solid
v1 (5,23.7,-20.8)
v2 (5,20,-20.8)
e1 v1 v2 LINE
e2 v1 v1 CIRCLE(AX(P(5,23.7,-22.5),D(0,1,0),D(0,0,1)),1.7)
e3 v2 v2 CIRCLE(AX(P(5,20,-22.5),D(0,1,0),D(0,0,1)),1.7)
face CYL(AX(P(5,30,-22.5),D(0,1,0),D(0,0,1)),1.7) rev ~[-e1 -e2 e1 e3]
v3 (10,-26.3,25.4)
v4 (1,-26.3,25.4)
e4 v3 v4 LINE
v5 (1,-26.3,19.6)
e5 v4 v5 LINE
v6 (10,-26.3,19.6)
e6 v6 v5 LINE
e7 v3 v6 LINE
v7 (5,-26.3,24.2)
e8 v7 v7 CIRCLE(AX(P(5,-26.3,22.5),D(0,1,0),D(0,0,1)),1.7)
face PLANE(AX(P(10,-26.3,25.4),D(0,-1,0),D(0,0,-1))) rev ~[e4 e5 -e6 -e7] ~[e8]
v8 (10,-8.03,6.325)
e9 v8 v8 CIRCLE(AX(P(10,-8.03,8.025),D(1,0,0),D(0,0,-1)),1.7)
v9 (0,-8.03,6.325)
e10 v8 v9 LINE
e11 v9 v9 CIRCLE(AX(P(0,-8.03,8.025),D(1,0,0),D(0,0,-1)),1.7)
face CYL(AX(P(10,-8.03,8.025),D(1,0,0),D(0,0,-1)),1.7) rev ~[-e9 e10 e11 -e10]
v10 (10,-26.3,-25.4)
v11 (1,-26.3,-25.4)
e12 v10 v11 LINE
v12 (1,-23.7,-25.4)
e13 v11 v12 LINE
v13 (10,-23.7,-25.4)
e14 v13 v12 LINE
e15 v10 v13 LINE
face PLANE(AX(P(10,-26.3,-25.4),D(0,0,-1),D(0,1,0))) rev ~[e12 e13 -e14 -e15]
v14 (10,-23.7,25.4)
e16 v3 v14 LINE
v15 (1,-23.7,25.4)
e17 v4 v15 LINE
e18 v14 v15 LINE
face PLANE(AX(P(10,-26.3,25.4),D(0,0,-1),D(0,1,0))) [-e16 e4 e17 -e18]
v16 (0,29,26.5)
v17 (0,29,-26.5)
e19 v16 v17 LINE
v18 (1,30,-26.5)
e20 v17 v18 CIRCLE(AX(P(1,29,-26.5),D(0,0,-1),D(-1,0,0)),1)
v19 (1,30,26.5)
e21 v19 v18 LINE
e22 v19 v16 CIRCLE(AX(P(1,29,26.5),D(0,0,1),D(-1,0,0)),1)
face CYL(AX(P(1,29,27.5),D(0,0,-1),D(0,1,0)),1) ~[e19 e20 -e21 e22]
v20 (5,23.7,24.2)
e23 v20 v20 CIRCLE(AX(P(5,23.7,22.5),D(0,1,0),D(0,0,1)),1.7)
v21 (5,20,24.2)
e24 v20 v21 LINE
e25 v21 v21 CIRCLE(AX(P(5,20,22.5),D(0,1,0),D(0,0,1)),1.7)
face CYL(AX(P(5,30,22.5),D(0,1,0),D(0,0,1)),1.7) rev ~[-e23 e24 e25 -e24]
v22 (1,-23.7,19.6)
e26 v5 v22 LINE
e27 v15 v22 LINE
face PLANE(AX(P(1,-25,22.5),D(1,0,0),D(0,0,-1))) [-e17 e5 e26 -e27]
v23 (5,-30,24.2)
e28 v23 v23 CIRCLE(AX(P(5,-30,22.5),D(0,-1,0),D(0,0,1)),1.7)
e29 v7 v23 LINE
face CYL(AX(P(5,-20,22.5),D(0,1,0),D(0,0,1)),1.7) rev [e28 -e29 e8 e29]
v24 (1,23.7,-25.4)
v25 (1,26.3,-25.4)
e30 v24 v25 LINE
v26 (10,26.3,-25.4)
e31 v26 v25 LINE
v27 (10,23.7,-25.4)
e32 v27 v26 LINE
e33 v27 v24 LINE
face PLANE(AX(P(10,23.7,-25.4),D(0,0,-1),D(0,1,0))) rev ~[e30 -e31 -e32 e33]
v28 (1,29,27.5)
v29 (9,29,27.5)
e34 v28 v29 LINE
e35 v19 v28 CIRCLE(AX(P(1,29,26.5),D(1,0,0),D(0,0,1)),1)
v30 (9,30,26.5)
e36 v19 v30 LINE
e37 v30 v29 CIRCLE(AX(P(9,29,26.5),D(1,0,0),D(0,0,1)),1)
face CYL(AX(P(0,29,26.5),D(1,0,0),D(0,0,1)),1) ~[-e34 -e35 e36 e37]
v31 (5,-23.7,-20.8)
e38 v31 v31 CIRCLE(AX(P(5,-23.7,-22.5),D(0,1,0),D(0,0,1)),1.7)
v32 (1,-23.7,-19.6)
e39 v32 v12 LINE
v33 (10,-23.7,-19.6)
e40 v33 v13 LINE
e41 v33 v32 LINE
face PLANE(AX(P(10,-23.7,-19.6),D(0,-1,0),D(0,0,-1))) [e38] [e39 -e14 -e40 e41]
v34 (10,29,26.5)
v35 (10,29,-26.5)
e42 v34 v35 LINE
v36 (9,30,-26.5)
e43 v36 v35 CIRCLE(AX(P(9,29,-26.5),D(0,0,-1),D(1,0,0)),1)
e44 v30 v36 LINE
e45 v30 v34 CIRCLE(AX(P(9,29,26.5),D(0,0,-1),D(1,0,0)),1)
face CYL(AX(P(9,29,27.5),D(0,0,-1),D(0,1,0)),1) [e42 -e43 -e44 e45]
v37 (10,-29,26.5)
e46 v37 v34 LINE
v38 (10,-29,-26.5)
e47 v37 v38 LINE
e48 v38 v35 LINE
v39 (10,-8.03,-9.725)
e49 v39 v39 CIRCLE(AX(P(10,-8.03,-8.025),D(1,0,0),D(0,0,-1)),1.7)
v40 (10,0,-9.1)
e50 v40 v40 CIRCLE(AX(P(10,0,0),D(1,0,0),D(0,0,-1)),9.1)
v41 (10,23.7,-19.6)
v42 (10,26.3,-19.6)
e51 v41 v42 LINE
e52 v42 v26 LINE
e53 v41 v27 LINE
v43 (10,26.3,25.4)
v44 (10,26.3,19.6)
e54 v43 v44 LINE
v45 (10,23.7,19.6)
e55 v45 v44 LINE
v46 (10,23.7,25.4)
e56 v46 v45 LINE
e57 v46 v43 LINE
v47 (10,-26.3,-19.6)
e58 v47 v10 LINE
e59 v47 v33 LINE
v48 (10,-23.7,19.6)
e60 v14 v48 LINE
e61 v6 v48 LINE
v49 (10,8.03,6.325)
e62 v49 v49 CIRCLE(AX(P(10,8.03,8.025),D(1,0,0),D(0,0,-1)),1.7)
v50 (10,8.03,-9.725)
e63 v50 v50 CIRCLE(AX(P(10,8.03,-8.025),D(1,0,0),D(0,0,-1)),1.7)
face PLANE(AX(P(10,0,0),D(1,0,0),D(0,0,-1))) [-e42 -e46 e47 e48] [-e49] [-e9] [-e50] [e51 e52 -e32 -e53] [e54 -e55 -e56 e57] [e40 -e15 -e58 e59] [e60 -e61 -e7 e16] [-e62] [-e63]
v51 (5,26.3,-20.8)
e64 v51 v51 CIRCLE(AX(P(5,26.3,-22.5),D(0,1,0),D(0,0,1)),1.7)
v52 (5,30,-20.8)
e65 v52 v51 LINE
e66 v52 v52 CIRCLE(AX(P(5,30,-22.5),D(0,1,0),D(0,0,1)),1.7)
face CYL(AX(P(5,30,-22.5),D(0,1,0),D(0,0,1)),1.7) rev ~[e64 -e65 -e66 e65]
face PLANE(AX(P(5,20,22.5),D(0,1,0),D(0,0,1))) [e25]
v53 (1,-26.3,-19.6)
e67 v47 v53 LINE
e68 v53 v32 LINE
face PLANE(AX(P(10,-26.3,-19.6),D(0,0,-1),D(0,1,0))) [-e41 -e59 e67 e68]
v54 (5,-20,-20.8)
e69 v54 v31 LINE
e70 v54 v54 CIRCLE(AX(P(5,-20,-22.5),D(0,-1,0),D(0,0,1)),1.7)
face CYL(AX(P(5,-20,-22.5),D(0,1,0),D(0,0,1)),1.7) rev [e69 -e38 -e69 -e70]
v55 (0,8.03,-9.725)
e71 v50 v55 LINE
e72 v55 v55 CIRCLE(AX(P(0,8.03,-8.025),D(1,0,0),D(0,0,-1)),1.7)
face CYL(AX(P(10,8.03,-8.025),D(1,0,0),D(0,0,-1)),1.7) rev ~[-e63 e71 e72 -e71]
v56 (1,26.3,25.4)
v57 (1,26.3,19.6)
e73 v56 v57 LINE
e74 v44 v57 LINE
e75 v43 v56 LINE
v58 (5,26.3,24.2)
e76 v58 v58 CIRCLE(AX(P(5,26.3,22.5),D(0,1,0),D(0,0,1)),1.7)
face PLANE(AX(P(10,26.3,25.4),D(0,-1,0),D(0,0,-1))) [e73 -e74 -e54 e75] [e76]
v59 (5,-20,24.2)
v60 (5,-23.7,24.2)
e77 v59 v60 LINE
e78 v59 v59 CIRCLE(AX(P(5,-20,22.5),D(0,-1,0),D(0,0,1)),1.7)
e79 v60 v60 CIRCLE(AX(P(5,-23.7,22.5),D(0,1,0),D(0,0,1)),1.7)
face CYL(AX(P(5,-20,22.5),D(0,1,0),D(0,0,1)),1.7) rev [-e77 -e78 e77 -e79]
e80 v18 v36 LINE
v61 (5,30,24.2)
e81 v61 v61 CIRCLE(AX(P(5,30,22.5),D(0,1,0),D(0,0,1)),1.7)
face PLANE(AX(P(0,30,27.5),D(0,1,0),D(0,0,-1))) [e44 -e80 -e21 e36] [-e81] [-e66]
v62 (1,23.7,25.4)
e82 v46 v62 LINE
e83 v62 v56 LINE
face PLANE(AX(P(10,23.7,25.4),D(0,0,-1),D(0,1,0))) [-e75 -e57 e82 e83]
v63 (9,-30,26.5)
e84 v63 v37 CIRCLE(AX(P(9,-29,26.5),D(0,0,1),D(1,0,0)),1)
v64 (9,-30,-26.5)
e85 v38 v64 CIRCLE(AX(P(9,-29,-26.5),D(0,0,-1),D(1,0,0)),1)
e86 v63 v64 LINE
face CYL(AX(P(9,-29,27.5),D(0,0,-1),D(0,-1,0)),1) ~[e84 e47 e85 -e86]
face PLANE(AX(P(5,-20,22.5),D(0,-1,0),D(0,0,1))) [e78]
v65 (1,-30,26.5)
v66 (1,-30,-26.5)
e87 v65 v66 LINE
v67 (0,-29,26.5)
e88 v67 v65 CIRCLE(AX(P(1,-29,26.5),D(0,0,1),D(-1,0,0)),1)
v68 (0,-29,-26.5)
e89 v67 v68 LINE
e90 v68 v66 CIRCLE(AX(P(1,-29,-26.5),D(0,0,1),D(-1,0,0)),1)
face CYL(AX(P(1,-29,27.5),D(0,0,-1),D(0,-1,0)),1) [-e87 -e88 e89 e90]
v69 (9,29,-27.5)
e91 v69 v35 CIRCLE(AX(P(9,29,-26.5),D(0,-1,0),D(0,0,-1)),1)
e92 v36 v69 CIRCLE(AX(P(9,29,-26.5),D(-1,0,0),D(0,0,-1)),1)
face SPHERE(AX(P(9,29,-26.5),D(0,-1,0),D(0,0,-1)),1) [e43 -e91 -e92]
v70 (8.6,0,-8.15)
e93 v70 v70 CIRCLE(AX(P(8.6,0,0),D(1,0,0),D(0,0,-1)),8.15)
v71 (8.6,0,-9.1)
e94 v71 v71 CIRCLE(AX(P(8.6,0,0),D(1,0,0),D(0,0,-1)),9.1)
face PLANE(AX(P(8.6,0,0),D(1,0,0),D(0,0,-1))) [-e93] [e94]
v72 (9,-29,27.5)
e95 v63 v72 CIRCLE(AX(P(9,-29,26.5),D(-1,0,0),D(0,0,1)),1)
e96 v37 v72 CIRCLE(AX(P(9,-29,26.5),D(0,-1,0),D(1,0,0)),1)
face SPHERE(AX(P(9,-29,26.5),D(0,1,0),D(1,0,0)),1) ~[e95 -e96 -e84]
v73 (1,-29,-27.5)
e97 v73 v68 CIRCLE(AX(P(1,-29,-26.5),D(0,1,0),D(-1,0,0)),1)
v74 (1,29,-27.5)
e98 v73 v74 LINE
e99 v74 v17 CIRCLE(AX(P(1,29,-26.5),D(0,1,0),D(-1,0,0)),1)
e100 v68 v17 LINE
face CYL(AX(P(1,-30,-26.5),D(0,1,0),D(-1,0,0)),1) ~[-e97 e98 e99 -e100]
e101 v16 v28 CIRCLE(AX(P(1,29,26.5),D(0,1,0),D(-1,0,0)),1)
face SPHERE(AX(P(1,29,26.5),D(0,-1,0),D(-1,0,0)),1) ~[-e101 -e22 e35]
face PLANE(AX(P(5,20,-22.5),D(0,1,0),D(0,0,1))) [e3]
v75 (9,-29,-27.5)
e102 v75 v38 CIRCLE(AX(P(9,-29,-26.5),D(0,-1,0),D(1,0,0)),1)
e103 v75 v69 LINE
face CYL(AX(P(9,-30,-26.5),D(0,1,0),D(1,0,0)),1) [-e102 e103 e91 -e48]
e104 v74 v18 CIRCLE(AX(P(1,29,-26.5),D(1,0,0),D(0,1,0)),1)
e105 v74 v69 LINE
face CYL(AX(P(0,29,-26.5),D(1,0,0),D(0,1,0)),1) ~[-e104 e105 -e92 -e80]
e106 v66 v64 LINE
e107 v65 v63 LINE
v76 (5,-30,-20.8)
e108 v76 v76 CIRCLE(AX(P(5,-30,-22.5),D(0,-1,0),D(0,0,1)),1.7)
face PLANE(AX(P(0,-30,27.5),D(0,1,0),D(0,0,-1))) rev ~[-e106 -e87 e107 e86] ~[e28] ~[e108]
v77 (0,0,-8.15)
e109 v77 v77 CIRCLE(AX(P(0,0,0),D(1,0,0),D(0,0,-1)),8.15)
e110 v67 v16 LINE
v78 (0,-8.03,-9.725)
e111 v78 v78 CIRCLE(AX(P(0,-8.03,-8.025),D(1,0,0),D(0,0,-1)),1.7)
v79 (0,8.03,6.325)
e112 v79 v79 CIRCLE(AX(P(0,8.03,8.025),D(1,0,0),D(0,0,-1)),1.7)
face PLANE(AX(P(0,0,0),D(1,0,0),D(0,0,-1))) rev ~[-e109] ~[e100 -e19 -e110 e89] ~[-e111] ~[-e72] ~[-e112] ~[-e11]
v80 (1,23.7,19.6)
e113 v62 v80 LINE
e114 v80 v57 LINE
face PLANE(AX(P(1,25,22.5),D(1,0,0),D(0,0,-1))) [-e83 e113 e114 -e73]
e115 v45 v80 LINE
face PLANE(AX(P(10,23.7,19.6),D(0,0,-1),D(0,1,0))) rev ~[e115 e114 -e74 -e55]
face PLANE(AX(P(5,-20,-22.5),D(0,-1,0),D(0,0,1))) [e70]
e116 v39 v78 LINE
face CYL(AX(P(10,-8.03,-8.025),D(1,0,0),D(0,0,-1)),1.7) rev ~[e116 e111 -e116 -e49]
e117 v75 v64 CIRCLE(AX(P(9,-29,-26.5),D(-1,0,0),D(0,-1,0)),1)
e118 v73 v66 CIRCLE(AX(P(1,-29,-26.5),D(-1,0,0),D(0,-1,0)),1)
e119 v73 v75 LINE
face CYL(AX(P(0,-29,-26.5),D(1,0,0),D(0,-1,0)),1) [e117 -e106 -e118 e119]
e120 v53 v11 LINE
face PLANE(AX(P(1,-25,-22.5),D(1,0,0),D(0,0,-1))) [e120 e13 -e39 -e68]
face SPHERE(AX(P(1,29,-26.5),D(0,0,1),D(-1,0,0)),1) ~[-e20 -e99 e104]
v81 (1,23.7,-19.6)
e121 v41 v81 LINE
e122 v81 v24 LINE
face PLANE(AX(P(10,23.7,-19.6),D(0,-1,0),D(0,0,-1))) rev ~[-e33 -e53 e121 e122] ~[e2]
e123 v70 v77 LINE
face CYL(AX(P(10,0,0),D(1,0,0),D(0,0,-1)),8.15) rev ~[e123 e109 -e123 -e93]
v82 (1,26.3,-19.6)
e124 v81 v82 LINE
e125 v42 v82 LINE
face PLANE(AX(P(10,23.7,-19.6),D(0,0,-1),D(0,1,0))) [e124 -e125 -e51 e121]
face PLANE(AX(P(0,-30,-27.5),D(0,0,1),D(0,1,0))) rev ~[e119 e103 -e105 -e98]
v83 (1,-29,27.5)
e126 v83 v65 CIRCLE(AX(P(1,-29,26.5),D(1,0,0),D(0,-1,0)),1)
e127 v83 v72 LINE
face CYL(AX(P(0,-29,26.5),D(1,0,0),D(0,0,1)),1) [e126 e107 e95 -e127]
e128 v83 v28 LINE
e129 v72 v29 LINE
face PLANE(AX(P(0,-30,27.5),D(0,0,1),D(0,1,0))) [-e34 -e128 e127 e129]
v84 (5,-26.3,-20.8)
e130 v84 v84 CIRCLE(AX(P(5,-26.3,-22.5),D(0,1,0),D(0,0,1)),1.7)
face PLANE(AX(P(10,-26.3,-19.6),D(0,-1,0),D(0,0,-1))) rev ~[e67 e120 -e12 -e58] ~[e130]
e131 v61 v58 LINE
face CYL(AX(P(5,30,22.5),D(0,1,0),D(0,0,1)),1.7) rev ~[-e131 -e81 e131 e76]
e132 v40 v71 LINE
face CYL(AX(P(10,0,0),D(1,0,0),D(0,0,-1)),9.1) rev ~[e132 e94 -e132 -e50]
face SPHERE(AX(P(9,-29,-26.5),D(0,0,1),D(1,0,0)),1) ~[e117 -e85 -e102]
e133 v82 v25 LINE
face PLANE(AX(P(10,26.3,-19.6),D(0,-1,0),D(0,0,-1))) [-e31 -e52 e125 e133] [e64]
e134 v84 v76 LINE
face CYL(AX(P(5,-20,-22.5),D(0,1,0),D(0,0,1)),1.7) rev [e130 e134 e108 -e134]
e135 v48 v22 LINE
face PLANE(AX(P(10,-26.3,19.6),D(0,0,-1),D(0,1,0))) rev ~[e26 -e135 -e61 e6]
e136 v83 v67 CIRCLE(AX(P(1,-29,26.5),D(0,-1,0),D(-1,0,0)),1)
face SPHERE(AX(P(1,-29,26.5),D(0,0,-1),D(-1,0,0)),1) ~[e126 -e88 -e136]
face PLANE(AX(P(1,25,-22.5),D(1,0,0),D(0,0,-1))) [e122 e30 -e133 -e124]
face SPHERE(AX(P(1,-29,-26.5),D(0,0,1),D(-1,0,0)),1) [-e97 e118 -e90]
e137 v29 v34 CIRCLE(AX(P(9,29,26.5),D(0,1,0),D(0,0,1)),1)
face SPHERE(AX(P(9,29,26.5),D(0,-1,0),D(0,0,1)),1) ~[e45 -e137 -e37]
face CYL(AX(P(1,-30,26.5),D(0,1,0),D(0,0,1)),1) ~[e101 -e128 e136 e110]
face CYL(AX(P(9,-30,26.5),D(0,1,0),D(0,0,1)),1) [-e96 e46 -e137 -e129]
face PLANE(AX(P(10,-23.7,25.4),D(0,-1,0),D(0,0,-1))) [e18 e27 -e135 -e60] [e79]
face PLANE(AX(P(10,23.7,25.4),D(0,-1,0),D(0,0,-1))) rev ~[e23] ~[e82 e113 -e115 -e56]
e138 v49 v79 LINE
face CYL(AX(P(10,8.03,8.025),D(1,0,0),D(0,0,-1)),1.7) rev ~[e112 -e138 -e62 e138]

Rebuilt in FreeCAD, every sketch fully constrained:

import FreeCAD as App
import Part
import Sketcher


def edges_at(feature, points):
    """Names of the edges that pass closest to the given points."""
    edges = feature.Shape.Edges
    near = lambda p: min(range(len(edges)), key=lambda i: edges[i].distToShape(Part.Vertex(*p))[0])
    return sorted({f"Edge{near(p) + 1}" for p in points})


def add_polygon(sketch, points):
    """Adds a closed chain of lines whose ends are joined by coincident constraints."""
    first, n = sketch.GeometryCount, len(points)
    for a, b in zip(points, points[1:] + points[:1]):
        sketch.addGeometry(Part.LineSegment(App.Vector(*a, 0), App.Vector(*b, 0)), False)
    for i in range(n):
        sketch.addConstraint(Sketcher.Constraint("Coincident", first + i, 2, first + (i + 1) % n, 1))

doc = App.newDocument("Part")
body = doc.addObject("PartDesign::Body", "Body")

sketch1 = doc.addObject("Sketcher::SketchObject", "Sketch")
body.addObject(sketch1)
sketch1.AttachmentSupport = (doc.YZ_Plane, [""])
sketch1.MapMode = "FlatFace"
add_polygon(sketch1, [(30, 28), (-30, 28), (-30, -28), (30, -28)])
sketch1.addConstraint([
    Sketcher.Constraint("Horizontal", 0),
    Sketcher.Constraint("Vertical", 1),
    Sketcher.Constraint("Horizontal", 2),
    Sketcher.Constraint("Vertical", 3),
    Sketcher.Constraint("Symmetric", 0, 2, 2, 2, -1, 1),
    Sketcher.Constraint("DistanceX", 0, 2, 0, 1, 60.0),
    Sketcher.Constraint("DistanceY", 1, 2, 1, 1, 55.0),
])
pad1 = doc.addObject("PartDesign::Pad", "Pad")
body.addObject(pad1)
pad1.Profile = sketch1
pad1.Length = 10

sketch2 = doc.addObject("Sketcher::SketchObject", "Sketch001")
body.addObject(sketch2)
sketch2.AttachmentSupport = (doc.XZ_Plane, [""])
sketch2.MapMode = "FlatFace"
sketch2.AttachmentOffset = App.Placement(App.Vector(0, 0, -30), App.Rotation())
sketch2.addGeometry([
    Part.Circle(App.Vector(5, -22.5, 0), App.Vector(0, 0, 1), 1.7),
    Part.Circle(App.Vector(5, 22.5, 0), App.Vector(0, 0, 1), 1.7),
], False)
sketch2.addConstraint([
    Sketcher.Constraint("Equal", 0, 1),
    Sketcher.Constraint("Symmetric", 0, 3, 1, 3, -1),
    Sketcher.Constraint("Diameter", 0, 3.4),
    Sketcher.Constraint("DistanceX", -1, 1, 0, 3, 5.0),
    Sketcher.Constraint("DistanceY", 0, 3, 1, 3, 45.0),
])
pocket1 = doc.addObject("PartDesign::Pocket", "Pocket")
body.addObject(pocket1)
pocket1.Profile = sketch2
pocket1.Length = 10
pocket1.Reversed = True

sketch3 = doc.addObject("Sketcher::SketchObject", "Sketch002")
body.addObject(sketch3)
sketch3.AttachmentSupport = (doc.XZ_Plane, [""])
sketch3.MapMode = "FlatFace"
sketch3.AttachmentOffset = App.Placement(App.Vector(0, 0, 20), App.Rotation())
sketch3.addGeometry([
    Part.Circle(App.Vector(5, 22.5, 0), App.Vector(0, 0, 1), 1.7),
    Part.Circle(App.Vector(5, -22.5, 0), App.Vector(0, 0, 1), 1.7),
], False)
sketch3.addConstraint([
    Sketcher.Constraint("Equal", 0, 1),
    Sketcher.Constraint("Symmetric", 0, 3, 1, 3, -1),
    Sketcher.Constraint("Diameter", 0, 3.4),
    Sketcher.Constraint("DistanceX", -1, 1, 0, 3, 5.0),
    Sketcher.Constraint("DistanceY", 1, 3, 0, 3, 45.0),
])
pocket2 = doc.addObject("PartDesign::Pocket", "Pocket001")
body.addObject(pocket2)
pocket2.Profile = sketch3
pocket2.Length = 10
pocket2.Reversed = True

sketch4 = doc.addObject("Sketcher::SketchObject", "Sketch003")
body.addObject(sketch4)
sketch4.AttachmentSupport = (doc.YZ_Plane, [""])
sketch4.MapMode = "FlatFace"
sketch4.AttachmentOffset = App.Placement(App.Vector(0, 0, 10), App.Rotation())
add_polygon(sketch4, [(26.3, 25.4), (23.7, 25.4), (23.7, 19.6), (26.3, 19.6)])
add_polygon(sketch4, [(26.3, -19.6), (23.7, -19.6), (23.7, -25.4), (26.3, -25.4)])
add_polygon(sketch4, [(-23.7, 25.4), (-26.3, 25.4), (-26.3, 19.6), (-23.7, 19.6)])
add_polygon(sketch4, [(-23.7, -19.6), (-26.3, -19.6), (-26.3, -25.4), (-23.7, -25.4)])
sketch4.addConstraint([
    Sketcher.Constraint("Horizontal", 0),
    Sketcher.Constraint("Vertical", 1),
    Sketcher.Constraint("Horizontal", 2),
    Sketcher.Constraint("Vertical", 3),
    Sketcher.Constraint("Horizontal", 4),
    Sketcher.Constraint("Vertical", 5),
    Sketcher.Constraint("Horizontal", 6),
    Sketcher.Constraint("Vertical", 7),
    Sketcher.Constraint("Horizontal", 8),
    Sketcher.Constraint("Vertical", 9),
    Sketcher.Constraint("Horizontal", 10),
    Sketcher.Constraint("Vertical", 11),
    Sketcher.Constraint("Horizontal", 12),
    Sketcher.Constraint("Vertical", 13),
    Sketcher.Constraint("Horizontal", 14),
    Sketcher.Constraint("Vertical", 15),
    Sketcher.Constraint("Symmetric", 6, 2, 8, 2, -1, 1),
    Sketcher.Constraint("Symmetric", 4, 2, 10, 2, -1, 1),
    Sketcher.Constraint("Symmetric", 2, 2, 12, 2, -1, 1),
    Sketcher.Constraint("Symmetric", 0, 2, 14, 2, -1, 1),
    Sketcher.Constraint("Symmetric", 3, 2, 8, 2, -2),
    Sketcher.Constraint("Symmetric", 1, 2, 10, 2, -2),
    Sketcher.Constraint("DistanceX", 0, 2, 0, 1, 2.6),
    Sketcher.Constraint("DistanceY", 1, 2, 1, 1, 5.8),
    Sketcher.Constraint("DistanceY", 4, 2, 0, 2, 45.0),
    Sketcher.Constraint("DistanceX", 8, 2, 0, 2, 50.0),
])
pocket3 = doc.addObject("PartDesign::Pocket", "Pocket002")
body.addObject(pocket3)
pocket3.Profile = sketch4
pocket3.Length = 9

sketch5 = doc.addObject("Sketcher::SketchObject", "Sketch004")
body.addObject(sketch5)
sketch5.AttachmentSupport = (doc.YZ_Plane, [""])
sketch5.MapMode = "FlatFace"
sketch5.AttachmentOffset = App.Placement(App.Vector(0, 0, 10), App.Rotation())
sketch5.addGeometry(Part.Circle(App.Vector(0, 0, 0), App.Vector(0, 0, 1), 8), False)
sketch5.addConstraint([
    Sketcher.Constraint("Coincident", 0, 3, -1, 1),
    Sketcher.Constraint("Diameter", 0, 16.3),
])
pocket4 = doc.addObject("PartDesign::Pocket", "Pocket003")
body.addObject(pocket4)
pocket4.Profile = sketch5
pocket4.Length = 24

sketch6 = doc.addObject("Sketcher::SketchObject", "Sketch005")
body.addObject(sketch6)
sketch6.AttachmentSupport = (doc.YZ_Plane, [""])
sketch6.MapMode = "FlatFace"
sketch6.AttachmentOffset = App.Placement(App.Vector(0, 0, 10), App.Rotation())
sketch6.addGeometry(Part.Circle(App.Vector(0, 0, 0), App.Vector(0, 0, 1), 9), False)
sketch6.addConstraint([
    Sketcher.Constraint("Coincident", 0, 3, -1, 1),
    Sketcher.Constraint("Diameter", 0, 18.2),
])
pocket5 = doc.addObject("PartDesign::Pocket", "Pocket004")
body.addObject(pocket5)
pocket5.Profile = sketch6
pocket5.Length = 1.4
doc.recompute()

fillet = doc.addObject("PartDesign::Fillet", "Fillet")
body.addObject(fillet)
fillet.Base = (pocket5, edges_at(pocket5, [
    (10, 0, 27.5),
    (10, -30, 0),
    (10, 0, -27.5),
    (0, -30, 0),
    (0, 0, 27.5),
    (0, 30, 0),
    (0, 0, -27.5),
    (5, -30, -27.5),
    (5, -30, 27.5),
    (5, 30, 27.5),
    (5, 30, -27.5),
    (10, 30, 0),
]))
fillet.Radius = 1

sketch7 = doc.addObject("Sketcher::SketchObject", "Sketch006")
body.addObject(sketch7)
sketch7.AttachmentSupport = (doc.YZ_Plane, [""])
sketch7.MapMode = "FlatFace"
sketch7.AttachmentOffset = App.Placement(App.Vector(0, 0, 10), App.Rotation())
sketch7.addGeometry([
    Part.Circle(App.Vector(8, 8, 0), App.Vector(0, 0, 1), 1.7),
    Part.Circle(App.Vector(8, -8, 0), App.Vector(0, 0, 1), 1.7),
    Part.Circle(App.Vector(-8, -8, 0), App.Vector(0, 0, 1), 1.7),
    Part.Circle(App.Vector(-8, 8, 0), App.Vector(0, 0, 1), 1.7),
], False)
sketch7.addConstraint([
    Sketcher.Constraint("Equal", 0, 1),
    Sketcher.Constraint("Equal", 1, 2),
    Sketcher.Constraint("Equal", 2, 3),
    Sketcher.Constraint("Symmetric", 0, 3, 2, 3, -1, 1),
    Sketcher.Constraint("Symmetric", 1, 3, 3, 3, -1, 1),
    Sketcher.Constraint("Symmetric", 1, 3, 2, 3, -2),
    Sketcher.Constraint("Diameter", 0, 3.4),
    Sketcher.Constraint("DistanceX", -1, 1, 0, 3, 8.03),
    Sketcher.Constraint("DistanceY", 1, 3, 0, 3, 16.05),
])
pocket6 = doc.addObject("PartDesign::Pocket", "Pocket005")
body.addObject(pocket6)
pocket6.Profile = sketch7
pocket6.Length = 27

doc.recompute()
